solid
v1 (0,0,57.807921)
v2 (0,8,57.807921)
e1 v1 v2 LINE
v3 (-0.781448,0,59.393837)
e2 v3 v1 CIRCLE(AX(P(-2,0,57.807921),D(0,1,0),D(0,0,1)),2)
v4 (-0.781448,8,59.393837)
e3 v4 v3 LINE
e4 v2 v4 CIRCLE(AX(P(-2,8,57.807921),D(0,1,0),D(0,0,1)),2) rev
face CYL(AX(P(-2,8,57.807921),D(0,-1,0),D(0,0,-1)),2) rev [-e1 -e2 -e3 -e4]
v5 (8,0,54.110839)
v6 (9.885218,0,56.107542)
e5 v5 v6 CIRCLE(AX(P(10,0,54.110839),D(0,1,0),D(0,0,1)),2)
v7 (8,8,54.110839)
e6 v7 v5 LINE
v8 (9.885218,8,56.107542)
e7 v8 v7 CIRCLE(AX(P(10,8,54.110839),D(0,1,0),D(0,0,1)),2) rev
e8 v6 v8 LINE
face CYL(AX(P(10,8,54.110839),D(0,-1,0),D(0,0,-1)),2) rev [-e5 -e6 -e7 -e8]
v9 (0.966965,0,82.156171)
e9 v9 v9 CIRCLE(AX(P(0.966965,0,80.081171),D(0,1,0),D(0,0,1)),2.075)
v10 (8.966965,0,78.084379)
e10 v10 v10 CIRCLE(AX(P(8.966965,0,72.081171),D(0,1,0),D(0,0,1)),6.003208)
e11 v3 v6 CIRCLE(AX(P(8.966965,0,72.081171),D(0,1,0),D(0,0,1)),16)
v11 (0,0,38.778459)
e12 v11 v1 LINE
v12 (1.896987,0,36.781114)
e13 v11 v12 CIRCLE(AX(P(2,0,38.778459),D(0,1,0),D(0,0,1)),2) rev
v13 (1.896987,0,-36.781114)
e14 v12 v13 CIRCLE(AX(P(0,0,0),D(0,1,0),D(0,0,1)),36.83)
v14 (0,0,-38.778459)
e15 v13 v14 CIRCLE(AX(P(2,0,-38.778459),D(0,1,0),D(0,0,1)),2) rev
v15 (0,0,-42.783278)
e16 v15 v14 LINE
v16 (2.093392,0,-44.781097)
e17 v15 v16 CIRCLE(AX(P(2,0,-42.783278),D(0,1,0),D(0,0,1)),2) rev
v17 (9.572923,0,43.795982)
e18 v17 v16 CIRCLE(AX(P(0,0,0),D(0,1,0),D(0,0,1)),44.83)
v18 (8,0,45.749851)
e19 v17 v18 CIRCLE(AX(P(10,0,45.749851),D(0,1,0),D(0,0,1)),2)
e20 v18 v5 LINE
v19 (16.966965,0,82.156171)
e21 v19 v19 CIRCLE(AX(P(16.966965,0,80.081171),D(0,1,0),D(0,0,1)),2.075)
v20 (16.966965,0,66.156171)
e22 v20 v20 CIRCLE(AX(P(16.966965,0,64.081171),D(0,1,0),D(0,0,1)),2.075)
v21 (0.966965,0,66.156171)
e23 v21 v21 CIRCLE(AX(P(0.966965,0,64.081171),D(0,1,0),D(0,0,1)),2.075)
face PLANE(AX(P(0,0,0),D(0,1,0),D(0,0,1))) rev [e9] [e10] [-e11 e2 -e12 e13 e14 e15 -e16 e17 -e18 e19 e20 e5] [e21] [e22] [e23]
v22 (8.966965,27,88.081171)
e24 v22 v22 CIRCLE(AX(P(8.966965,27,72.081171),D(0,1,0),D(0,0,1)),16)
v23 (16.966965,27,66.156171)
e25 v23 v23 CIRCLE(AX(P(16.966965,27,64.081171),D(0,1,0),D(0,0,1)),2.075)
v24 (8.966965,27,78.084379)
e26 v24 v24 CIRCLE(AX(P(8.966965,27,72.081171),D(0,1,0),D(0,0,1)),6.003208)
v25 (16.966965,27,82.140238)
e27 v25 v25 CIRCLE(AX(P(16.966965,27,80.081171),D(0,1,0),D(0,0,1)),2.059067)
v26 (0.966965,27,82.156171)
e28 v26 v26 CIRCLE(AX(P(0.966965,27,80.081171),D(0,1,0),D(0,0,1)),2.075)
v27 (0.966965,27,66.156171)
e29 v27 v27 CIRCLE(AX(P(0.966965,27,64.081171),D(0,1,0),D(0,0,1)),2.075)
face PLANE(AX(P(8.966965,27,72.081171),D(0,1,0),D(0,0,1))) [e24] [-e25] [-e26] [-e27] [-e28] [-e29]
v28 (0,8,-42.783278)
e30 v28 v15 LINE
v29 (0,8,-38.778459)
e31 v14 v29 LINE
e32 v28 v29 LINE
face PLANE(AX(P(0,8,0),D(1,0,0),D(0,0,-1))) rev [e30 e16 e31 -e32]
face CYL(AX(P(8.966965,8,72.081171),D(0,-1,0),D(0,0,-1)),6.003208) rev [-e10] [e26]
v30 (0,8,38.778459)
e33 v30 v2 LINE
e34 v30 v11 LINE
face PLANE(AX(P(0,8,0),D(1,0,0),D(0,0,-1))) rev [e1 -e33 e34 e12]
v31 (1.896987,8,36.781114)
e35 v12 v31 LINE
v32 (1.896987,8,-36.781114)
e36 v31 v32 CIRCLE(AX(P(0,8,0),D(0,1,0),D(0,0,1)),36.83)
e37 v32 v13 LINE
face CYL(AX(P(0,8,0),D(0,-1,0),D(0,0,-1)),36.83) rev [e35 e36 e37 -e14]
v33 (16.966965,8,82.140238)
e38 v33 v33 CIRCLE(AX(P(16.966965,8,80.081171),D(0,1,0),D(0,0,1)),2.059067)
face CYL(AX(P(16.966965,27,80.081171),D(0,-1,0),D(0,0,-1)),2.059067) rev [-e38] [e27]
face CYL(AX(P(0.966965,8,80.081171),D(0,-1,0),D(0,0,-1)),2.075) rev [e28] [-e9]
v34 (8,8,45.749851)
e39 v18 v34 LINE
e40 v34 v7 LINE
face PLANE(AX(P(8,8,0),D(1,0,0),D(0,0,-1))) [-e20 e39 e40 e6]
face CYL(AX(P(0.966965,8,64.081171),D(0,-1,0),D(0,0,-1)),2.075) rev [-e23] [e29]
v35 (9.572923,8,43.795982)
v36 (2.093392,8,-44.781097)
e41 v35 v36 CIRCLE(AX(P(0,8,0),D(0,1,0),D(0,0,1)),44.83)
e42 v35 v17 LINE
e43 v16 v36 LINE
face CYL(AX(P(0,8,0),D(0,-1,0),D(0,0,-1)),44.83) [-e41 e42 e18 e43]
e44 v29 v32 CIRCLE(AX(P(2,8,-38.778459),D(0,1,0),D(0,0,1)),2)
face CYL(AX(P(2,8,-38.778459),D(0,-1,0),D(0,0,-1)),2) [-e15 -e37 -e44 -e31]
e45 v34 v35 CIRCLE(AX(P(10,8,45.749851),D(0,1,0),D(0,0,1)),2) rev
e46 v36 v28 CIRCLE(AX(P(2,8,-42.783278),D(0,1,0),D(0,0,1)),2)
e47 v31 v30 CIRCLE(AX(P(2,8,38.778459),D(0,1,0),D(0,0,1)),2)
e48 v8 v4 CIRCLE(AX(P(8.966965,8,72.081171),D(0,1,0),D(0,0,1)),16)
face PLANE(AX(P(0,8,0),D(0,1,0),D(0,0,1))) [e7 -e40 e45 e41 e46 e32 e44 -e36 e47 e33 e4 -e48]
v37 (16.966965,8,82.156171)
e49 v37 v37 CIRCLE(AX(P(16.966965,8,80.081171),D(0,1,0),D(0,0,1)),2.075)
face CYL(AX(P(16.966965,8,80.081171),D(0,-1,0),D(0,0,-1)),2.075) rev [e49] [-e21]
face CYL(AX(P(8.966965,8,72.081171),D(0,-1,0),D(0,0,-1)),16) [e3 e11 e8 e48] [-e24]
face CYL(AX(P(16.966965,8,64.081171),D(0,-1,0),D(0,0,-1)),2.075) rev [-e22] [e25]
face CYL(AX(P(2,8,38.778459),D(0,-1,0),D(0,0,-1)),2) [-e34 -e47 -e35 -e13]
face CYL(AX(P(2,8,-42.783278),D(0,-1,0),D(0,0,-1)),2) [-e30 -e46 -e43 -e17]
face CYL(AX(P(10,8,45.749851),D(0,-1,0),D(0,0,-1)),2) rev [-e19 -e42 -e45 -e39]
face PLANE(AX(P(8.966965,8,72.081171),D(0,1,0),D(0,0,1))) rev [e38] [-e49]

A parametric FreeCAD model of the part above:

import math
import FreeCAD as App
import Part
import Sketcher

V = App.Vector
Q = App.Units.Quantity


def edges_at(feature, points):
    """Names of the edges that pass closest to the given points."""
    edges = feature.Shape.Edges
    near = lambda p: min(range(len(edges)), key=lambda i: edges[i].distToShape(Part.Vertex(*p))[0])
    return sorted({f"Edge{near(p) + 1}" for p in points})

doc = App.newDocument("Part")
body = doc.addObject("PartDesign::Body", "Body")

# Sketch on XZ plane
sketch1 = body.newObject("Sketcher::SketchObject", "Sketch")
sketch1.AttachmentSupport = (doc.getObject("XZ_Plane"), [""])
sketch1.MapMode = "FlatFace"
sketch1.addGeometry([
    Part.LineSegment(V(0, -44.8, 0), V(0, -36.8, 0)),  # 0
    Part.ArcOfCircle(Part.Circle(V(0, 0, 0), V(0, 0, 1), 36.8), math.radians(-90), math.radians(90)),  # 1
    Part.LineSegment(V(0, 36.8, 0), V(0, 58.8, 0)),  # 2
    Part.ArcOfCircle(Part.Circle(V(9, 72.1, 0), V(0, 0, 1), 16), math.radians(-93), math.radians(236)),  # 3
    Part.LineSegment(V(8, 56.1, 0), V(8, 44.1, 0)),  # 4
    Part.ArcOfCircle(Part.Circle(V(0, 0, 0), V(0, 0, 1), 44.8), math.radians(-90), math.radians(80)),  # 5
    Part.Circle(V(1, 80.1, 0), V(0, 0, 1), 2.1),  # 6
    Part.Circle(V(9, 72.1, 0), V(0, 0, 1), 6),  # 7
    Part.Circle(V(17, 80.1, 0), V(0, 0, 1), 2.1),  # 8
    Part.Circle(V(1, 64.1, 0), V(0, 0, 1), 2.1),  # 9
    Part.Circle(V(17, 64.1, 0), V(0, 0, 1), 2.1),  # 10
], False)
sketch1.addConstraint([
    Sketcher.Constraint("Coincident", 0, 2, 1, 1),
    Sketcher.Constraint("Coincident", 1, 2, 2, 1),
    Sketcher.Constraint("Coincident", 2, 2, 3, 2),
    Sketcher.Constraint("Coincident", 3, 1, 4, 1),
    Sketcher.Constraint("Coincident", 4, 2, 5, 2),
    Sketcher.Constraint("Coincident", 5, 1, 0, 1),
    Sketcher.Constraint("Vertical", 0),
    Sketcher.Constraint("Vertical", 2),
    Sketcher.Constraint("Vertical", 4),
    Sketcher.Constraint("Coincident", 1, 3, -1, 1),
    Sketcher.Constraint("Coincident", 5, 3, -1, 1),
    Sketcher.Constraint("Coincident", 7, 3, 3, 3),
    Sketcher.Constraint("Equal", 6, 8),
    Sketcher.Constraint("Equal", 8, 9),
    Sketcher.Constraint("Equal", 9, 10),
    Sketcher.Constraint("PointOnObject", 0, 2, -2),
    Sketcher.Constraint("PointOnObject", 1, 2, -2),
    Sketcher.Constraint("Horizontal", 6, 3, 8, 3),
    Sketcher.Constraint("Horizontal", 9, 3, 10, 3),
    Sketcher.Constraint("Vertical", 6, 3, 9, 3),
    Sketcher.Constraint("Vertical", 8, 3, 10, 3),
    Sketcher.Constraint("Radius", 3, Q("16 mm")),
    Sketcher.Constraint("Diameter", 6, Q("4.15 mm")),
    Sketcher.Constraint("DistanceY", 0, 1, 0, 2, Q("8 mm")),
    Sketcher.Constraint("DistanceY", 2, 1, 2, 2, Q("22 mm")),
    Sketcher.Constraint("DistanceY", 4, 2, 4, 1, Q("12 mm")),
    Sketcher.Constraint("Radius", 1, Q("36.83 mm")),
    Sketcher.Constraint("DistanceX", -1, 1, 3, 1, Q("8 mm")),
    Sketcher.Constraint("DistanceX", 6, 3, 3, 3, Q("8 mm")),
    Sketcher.Constraint("DistanceY", 3, 3, 6, 3, Q("8 mm")),
    Sketcher.Constraint("DistanceX", 3, 3, 8, 3, Q("8 mm")),
    Sketcher.Constraint("DistanceY", 9, 3, 3, 3, Q("8 mm")),
    Sketcher.Constraint("Diameter", 7, Q("12.006417 mm")),
])
pad1 = body.newObject("PartDesign::Pad", "Pad")
pad1.Profile = sketch1
pad1.Length = 8
pad1.Reversed = True
doc.recompute()

fillet = body.newObject("PartDesign::Fillet", "Fillet")
fillet.Base = (pad1, edges_at(pad1, [
    (0, 4, 58.83),
    (0, 4, 36.83),
    (0, 4, -36.83),
    (0, 4, -44.83),
    (8, 4, 44.11),
    (8, 4, 56.11),
]))
fillet.Radius = 2

# Sketch on XZ plane
sketch2 = body.newObject("Sketcher::SketchObject", "Sketch001")
sketch2.AttachmentSupport = (doc.getObject("XZ_Plane"), [""])
sketch2.MapMode = "FlatFace"
sketch2.AttachmentOffset = App.Placement(V(0, 0, -8), App.Rotation())
sketch2.addGeometry([
    Part.Circle(V(9, 72.1, 0), V(0, 0, 1), 16),  # 0
    Part.Circle(V(17, 80.1, 0), V(0, 0, 1), 2.1),  # 1
    Part.Circle(V(9, 72.1, 0), V(0, 0, 1), 6),  # 2
    Part.Circle(V(17, 64.1, 0), V(0, 0, 1), 2.1),  # 3
    Part.Circle(V(1, 80.1, 0), V(0, 0, 1), 2.1),  # 4
    Part.Circle(V(1, 64.1, 0), V(0, 0, 1), 2.1),  # 5
], False)
sketch2.addConstraint([
    Sketcher.Constraint("Coincident", 2, 3, 0, 3),
    Sketcher.Constraint("Equal", 3, 4),
    Sketcher.Constraint("Equal", 4, 5),
    Sketcher.Constraint("Horizontal", 1, 3, 4, 3),
    Sketcher.Constraint("Horizontal", 3, 3, 5, 3),
    Sketcher.Constraint("Vertical", 1, 3, 3, 3),
    Sketcher.Constraint("Vertical", 4, 3, 5, 3),
    Sketcher.Constraint("Diameter", 0, Q("32 mm")),
    Sketcher.Constraint("Diameter", 3, Q("4.15 mm")),
    Sketcher.Constraint("DistanceX", 0, 3, 1, 3, Q("8 mm")),
    Sketcher.Constraint("DistanceY", 0, 3, 1, 3, Q("8 mm")),
    Sketcher.Constraint("DistanceY", 3, 3, 0, 3, Q("8 mm")),
    Sketcher.Constraint("DistanceX", 4, 3, 0, 3, Q("8 mm")),
    Sketcher.Constraint("Diameter", 1, Q("4.118135 mm")),
    Sketcher.Constraint("Diameter", 2, Q("12.006417 mm")),
    Sketcher.Constraint("DistanceY", -1, 1, 0, 3, Q("72.081171 mm")),
    Sketcher.Constraint("DistanceX", -1, 1, 0, 3, Q("8.966965 mm")),
])
pad2 = body.newObject("PartDesign::Pad", "Pad001")
pad2.Profile = sketch2
pad2.Length = 19
pad2.Reversed = True

doc.recompute()
